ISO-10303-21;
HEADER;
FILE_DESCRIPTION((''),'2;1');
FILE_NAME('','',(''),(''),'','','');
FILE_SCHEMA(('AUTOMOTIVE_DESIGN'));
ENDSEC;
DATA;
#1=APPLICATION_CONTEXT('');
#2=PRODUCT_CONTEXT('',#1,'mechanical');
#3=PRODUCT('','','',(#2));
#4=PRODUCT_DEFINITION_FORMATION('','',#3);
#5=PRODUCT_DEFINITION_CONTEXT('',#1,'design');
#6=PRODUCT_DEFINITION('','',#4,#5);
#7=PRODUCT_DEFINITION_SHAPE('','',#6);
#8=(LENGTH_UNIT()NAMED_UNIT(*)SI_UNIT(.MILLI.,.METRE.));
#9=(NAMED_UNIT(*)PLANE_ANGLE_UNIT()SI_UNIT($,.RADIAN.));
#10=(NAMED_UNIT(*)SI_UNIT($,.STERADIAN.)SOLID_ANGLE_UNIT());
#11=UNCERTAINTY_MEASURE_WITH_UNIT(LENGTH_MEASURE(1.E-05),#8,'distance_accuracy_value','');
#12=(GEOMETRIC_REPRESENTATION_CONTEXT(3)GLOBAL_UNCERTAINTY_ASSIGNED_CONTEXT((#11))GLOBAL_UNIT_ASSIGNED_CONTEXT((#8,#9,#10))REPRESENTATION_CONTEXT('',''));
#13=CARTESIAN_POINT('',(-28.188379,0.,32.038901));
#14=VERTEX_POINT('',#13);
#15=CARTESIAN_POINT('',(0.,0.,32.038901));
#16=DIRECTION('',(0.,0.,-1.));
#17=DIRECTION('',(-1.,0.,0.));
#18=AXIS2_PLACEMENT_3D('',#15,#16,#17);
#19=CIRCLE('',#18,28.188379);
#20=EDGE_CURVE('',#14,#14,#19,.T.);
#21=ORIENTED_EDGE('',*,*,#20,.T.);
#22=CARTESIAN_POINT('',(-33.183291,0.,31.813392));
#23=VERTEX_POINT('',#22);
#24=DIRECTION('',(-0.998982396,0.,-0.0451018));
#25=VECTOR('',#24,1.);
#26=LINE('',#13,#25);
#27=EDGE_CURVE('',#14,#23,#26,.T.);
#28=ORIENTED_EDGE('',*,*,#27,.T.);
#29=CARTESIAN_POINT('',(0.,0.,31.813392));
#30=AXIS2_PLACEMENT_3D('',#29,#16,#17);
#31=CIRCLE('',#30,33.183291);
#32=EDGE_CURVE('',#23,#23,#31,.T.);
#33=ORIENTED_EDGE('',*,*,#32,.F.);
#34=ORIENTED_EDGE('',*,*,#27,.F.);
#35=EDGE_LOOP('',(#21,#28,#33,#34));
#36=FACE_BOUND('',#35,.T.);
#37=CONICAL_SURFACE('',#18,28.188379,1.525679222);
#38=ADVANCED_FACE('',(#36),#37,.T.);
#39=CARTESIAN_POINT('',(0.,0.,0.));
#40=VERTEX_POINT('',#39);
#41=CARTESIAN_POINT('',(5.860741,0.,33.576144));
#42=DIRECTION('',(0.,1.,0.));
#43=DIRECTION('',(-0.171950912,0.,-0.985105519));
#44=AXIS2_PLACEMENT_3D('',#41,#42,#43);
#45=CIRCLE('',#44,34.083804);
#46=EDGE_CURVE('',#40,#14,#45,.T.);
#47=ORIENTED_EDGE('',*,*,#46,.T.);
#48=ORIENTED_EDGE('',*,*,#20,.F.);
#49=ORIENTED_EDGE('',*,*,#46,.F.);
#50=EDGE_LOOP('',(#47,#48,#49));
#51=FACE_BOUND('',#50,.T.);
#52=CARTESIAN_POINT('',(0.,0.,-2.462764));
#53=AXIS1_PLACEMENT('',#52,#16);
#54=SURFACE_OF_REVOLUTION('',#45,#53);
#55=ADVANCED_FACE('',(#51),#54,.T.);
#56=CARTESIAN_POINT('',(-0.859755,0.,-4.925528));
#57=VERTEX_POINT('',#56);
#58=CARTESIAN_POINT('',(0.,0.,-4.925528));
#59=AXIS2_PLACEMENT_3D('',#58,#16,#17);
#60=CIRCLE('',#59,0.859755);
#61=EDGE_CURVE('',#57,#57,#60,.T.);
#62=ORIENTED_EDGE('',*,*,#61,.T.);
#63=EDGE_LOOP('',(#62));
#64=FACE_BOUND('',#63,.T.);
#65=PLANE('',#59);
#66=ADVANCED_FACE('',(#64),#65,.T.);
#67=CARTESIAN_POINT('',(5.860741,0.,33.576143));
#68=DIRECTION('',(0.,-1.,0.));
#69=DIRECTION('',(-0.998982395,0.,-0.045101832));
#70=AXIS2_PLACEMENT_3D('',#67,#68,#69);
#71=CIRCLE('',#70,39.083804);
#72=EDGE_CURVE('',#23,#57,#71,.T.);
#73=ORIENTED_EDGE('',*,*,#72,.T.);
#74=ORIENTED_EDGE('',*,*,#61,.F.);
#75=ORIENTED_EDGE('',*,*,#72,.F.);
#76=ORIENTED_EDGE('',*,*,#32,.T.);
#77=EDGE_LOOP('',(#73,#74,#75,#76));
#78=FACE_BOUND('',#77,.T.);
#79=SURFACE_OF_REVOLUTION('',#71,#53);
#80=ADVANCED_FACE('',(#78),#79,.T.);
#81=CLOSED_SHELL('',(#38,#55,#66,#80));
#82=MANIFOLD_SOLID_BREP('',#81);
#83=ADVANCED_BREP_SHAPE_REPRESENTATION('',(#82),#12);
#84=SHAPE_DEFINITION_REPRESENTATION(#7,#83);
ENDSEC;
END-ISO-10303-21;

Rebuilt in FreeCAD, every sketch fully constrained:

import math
import FreeCAD as App
import Part
import Sketcher
from FreeCAD import Vector
Q = App.Units.Quantity

doc = App.newDocument("Part")
body = doc.addObject("PartDesign::Body", "Body")

# Sketch on XZ plane
sketch1 = body.newObject("Sketcher::SketchObject", "Sketch")
sketch1.AttachmentSupport = (doc.getObject("XZ_Plane"), [""])
sketch1.MapMode = "FlatFace"
sketch1.addGeometry(Part.ArcOfCircle(Part.Circle(Vector(5.9, 33.6, 0), Vector(0, 0, 1), 34.1), math.radians(-177), math.radians(-100)), False)
sketch1.addGeometry(Part.LineSegment(Vector(-28.2, 32, 0), Vector(-33.2, 31.8, 0)), False)
sketch1.addGeometry(Part.ArcOfCircle(Part.Circle(Vector(5.9, 33.6, 0), Vector(0, 0, 1), 39.1), math.radians(-177), math.radians(-100)), False)
sketch1.addGeometry(Part.LineSegment(Vector(-0.9, -4.9, 0), Vector(0, -4.9, 0)), False)
sketch1.addGeometry(Part.LineSegment(Vector(0, -4.9, 0), Vector(0, 0, 0)), False)
sketch1.addConstraint(Sketcher.Constraint("Coincident", 0, 1, 1, 1))
sketch1.addConstraint(Sketcher.Constraint("Coincident", 1, 2, 2, 1))
sketch1.addConstraint(Sketcher.Constraint("Coincident", 2, 2, 3, 1))
sketch1.addConstraint(Sketcher.Constraint("Coincident", 3, 2, 4, 1))
sketch1.addConstraint(Sketcher.Constraint("Coincident", 4, 2, 0, 2))
sketch1.addConstraint(Sketcher.Constraint("Horizontal", 3))
sketch1.addConstraint(Sketcher.Constraint("Vertical", 4))
sketch1.addConstraint(Sketcher.Constraint("Coincident", 4, 2, -1, 1))
sketch1.addConstraint(Sketcher.Constraint("Coincident", 2, 3, 0, 3))
sketch1.addConstraint(Sketcher.Constraint("Distance", 1, Q("5 mm")))
sketch1.addConstraint(Sketcher.Constraint("Radius", 0, Q("34.083804 mm")))
sketch1.addConstraint(Sketcher.Constraint("DistanceY", -1, 1, 0, 1, Q("32.038901 mm")))
sketch1.addConstraint(Sketcher.Constraint("DistanceX", 3, 1, 3, 2, Q("0.859755 mm")))
sketch1.addConstraint(Sketcher.Constraint("DistanceX", -1, 1, 0, 3, Q("5.860741 mm")))
sketch1.addConstraint(Sketcher.Constraint("DistanceX", 1, 2, -1, 1, Q("33.183291 mm")))
revolution = body.newObject("PartDesign::Revolution", "Revolution")
revolution.Profile = sketch1
revolution.ReferenceAxis = (sketch1, ["V_Axis"])
revolution.Angle = 360

doc.recompute()
